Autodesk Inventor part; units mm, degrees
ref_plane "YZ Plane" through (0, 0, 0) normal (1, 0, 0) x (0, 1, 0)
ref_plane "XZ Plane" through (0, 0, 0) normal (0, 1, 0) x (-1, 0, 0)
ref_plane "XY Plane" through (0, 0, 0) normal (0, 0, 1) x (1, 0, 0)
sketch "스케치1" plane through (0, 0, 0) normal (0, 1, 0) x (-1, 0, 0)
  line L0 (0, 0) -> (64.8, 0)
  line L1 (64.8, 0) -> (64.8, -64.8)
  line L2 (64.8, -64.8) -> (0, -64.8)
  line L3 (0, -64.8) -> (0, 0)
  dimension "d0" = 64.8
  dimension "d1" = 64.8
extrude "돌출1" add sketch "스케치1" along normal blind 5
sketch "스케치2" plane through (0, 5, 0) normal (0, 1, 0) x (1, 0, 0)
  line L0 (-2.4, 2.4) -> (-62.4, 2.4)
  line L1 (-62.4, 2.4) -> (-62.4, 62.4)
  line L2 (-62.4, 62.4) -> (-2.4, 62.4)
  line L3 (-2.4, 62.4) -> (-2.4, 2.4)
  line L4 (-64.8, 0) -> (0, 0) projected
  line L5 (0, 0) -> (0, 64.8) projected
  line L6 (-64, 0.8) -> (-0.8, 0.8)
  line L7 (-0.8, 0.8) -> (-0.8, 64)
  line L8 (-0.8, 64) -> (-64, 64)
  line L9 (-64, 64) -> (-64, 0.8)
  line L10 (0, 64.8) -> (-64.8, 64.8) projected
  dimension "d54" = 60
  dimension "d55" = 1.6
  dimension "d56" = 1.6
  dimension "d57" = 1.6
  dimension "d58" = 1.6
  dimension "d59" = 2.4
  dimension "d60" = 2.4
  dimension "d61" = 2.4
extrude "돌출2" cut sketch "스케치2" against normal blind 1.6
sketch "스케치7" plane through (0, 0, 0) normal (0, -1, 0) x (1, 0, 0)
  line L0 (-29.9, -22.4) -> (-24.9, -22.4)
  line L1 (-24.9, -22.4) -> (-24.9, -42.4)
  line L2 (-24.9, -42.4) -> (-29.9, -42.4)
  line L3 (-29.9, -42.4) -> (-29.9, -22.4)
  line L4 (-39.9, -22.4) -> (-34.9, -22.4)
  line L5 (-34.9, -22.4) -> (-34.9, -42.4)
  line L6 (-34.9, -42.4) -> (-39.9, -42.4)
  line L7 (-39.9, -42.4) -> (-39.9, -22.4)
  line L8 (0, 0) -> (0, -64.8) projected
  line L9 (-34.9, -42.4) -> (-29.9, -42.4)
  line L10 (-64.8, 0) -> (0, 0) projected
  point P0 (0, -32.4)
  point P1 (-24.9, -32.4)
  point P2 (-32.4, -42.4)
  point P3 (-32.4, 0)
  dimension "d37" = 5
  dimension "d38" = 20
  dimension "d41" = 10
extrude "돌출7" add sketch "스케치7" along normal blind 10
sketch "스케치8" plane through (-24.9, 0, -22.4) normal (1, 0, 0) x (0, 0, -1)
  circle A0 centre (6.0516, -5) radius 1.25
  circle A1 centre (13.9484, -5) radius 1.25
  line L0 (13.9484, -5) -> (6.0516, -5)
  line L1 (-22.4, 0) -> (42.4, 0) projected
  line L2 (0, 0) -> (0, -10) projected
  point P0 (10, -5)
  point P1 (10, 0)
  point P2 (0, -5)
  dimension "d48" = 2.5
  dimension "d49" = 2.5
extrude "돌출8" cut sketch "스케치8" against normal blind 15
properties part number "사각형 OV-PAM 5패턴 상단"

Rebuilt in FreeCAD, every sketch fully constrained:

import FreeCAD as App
import Part
import Sketcher

V = App.Vector
Q = App.Units.Quantity

doc = App.newDocument("Part")
params = doc.addObject("Spreadsheet::Sheet", "Params")
for row, (alias, value) in enumerate([
    ("sketch1_width", "64.8 mm"),
    ("pad1_length", "5 mm"),
    ("sketch2_width", "60 mm"),
    ("pocket1_length", "1.6 mm"),
    ("sketch3_width", "5 mm"),
    ("sketch3_height", "20 mm"),
    ("pad2_length", "10 mm"),
    ("sketch4_diameter", "2.5 mm"),
    ("pocket2_length", "15 mm"),
], start=1):
    params.set(f"A{row}", alias)
    params.set(f"B{row}", "=" + value)
    params.setAlias(f"B{row}", alias)

body = doc.addObject("PartDesign::Body", "Body")

# Sketch on XZ plane
sketch1 = body.newObject("Sketcher::SketchObject", "Sketch")
sketch1.AttachmentSupport = (doc.getObject("XZ_Plane"), [""])
sketch1.MapMode = "FlatFace"
sketch1.addGeometry(Part.LineSegment(V(-65, 0, 0), V(0, 0, 0)), False)
sketch1.addGeometry(Part.LineSegment(V(0, 0, 0), V(0, -65, 0)), False)
sketch1.addGeometry(Part.LineSegment(V(0, -65, 0), V(-65, -65, 0)), False)
sketch1.addGeometry(Part.LineSegment(V(-65, -65, 0), V(-65, 0, 0)), False)
sketch1.addConstraint(Sketcher.Constraint("Coincident", 0, 2, 1, 1))
sketch1.addConstraint(Sketcher.Constraint("Coincident", 1, 2, 2, 1))
sketch1.addConstraint(Sketcher.Constraint("Coincident", 2, 2, 3, 1))
sketch1.addConstraint(Sketcher.Constraint("Coincident", 3, 2, 0, 1))
sketch1.addConstraint(Sketcher.Constraint("Horizontal", 0))
sketch1.addConstraint(Sketcher.Constraint("Vertical", 1))
sketch1.addConstraint(Sketcher.Constraint("Horizontal", 2))
sketch1.addConstraint(Sketcher.Constraint("Vertical", 3))
sketch1.addConstraint(Sketcher.Constraint("Coincident", 0, 2, -1, 1))
sketch1.addConstraint(Sketcher.Constraint("Equal", 2, 1))
sketch1.addConstraint(Sketcher.Constraint("DistanceX", 0, 1, 0, 2, Q("64.8 mm")))
sketch1.setExpression("Constraints[10]", "Params.sketch1_width")
pad1 = body.newObject("PartDesign::Pad", "Pad")
pad1.Profile = sketch1
pad1.setExpression("Length", "Params.pad1_length")
pad1.Reversed = True

# Sketch on XZ plane
sketch2 = body.newObject("Sketcher::SketchObject", "Sketch001")
sketch2.AttachmentSupport = (doc.getObject("XZ_Plane"), [""])
sketch2.MapMode = "FlatFace"
sketch2.AttachmentOffset = App.Placement(V(0, 0, -5), App.Rotation())
sketch2.addGeometry(Part.LineSegment(V(-64, -64, 0), V(-64, -1, 0)), False)
sketch2.addGeometry(Part.LineSegment(V(-64, -1, 0), V(-1, -1, 0)), False)
sketch2.addGeometry(Part.LineSegment(V(-1, -1, 0), V(-1, -64, 0)), False)
sketch2.addGeometry(Part.LineSegment(V(-1, -64, 0), V(-64, -64, 0)), False)
sketch2.addGeometry(Part.LineSegment(V(-2, -62, 0), V(-2, -2, 0)), False)
sketch2.addGeometry(Part.LineSegment(V(-2, -2, 0), V(-62, -2, 0)), False)
sketch2.addGeometry(Part.LineSegment(V(-62, -2, 0), V(-62, -62, 0)), False)
sketch2.addGeometry(Part.LineSegment(V(-62, -62, 0), V(-2, -62, 0)), False)
sketch2.addConstraint(Sketcher.Constraint("Coincident", 0, 2, 1, 1))
sketch2.addConstraint(Sketcher.Constraint("Coincident", 1, 2, 2, 1))
sketch2.addConstraint(Sketcher.Constraint("Coincident", 2, 2, 3, 1))
sketch2.addConstraint(Sketcher.Constraint("Coincident", 3, 2, 0, 1))
sketch2.addConstraint(Sketcher.Constraint("Coincident", 4, 2, 5, 1))
sketch2.addConstraint(Sketcher.Constraint("Coincident", 5, 2, 6, 1))
sketch2.addConstraint(Sketcher.Constraint("Coincident", 6, 2, 7, 1))
sketch2.addConstraint(Sketcher.Constraint("Coincident", 7, 2, 4, 1))
sketch2.addConstraint(Sketcher.Constraint("Vertical", 0))
sketch2.addConstraint(Sketcher.Constraint("Horizontal", 1))
sketch2.addConstraint(Sketcher.Constraint("Vertical", 2))
sketch2.addConstraint(Sketcher.Constraint("Horizontal", 3))
sketch2.addConstraint(Sketcher.Constraint("Vertical", 4))
sketch2.addConstraint(Sketcher.Constraint("Horizontal", 5))
sketch2.addConstraint(Sketcher.Constraint("Vertical", 6))
sketch2.addConstraint(Sketcher.Constraint("Horizontal", 7))
sketch2.addConstraint(Sketcher.Constraint("Equal", 3, 0))
sketch2.addConstraint(Sketcher.Constraint("Equal", 7, 4))
sketch2.addConstraint(Sketcher.Constraint("DistanceX", 5, 2, 5, 1, Q("60 mm")))
sketch2.addConstraint(Sketcher.Constraint("DistanceX", 4, 2, -1, 1, Q("2.4 mm")))
sketch2.addConstraint(Sketcher.Constraint("DistanceY", 4, 2, -1, 1, Q("2.4 mm")))
sketch2.addConstraint(Sketcher.Constraint("DistanceX", 4, 2, 1, 2, Q("1.6 mm")))
sketch2.addConstraint(Sketcher.Constraint("DistanceY", 4, 2, 1, 2, Q("1.6 mm")))
sketch2.addConstraint(Sketcher.Constraint("DistanceX", 0, 2, 5, 2, Q("1.6 mm")))
sketch2.setExpression("Constraints[18]", "Params.sketch2_width")
pocket1 = body.newObject("PartDesign::Pocket", "Pocket")
pocket1.Profile = sketch2
pocket1.setExpression("Length", "Params.pocket1_length")
pocket1.Reversed = True

# Sketch on XZ plane
sketch3 = body.newObject("Sketcher::SketchObject", "Sketch002")
sketch3.AttachmentSupport = (doc.getObject("XZ_Plane"), [""])
sketch3.MapMode = "FlatFace"
sketch3.addGeometry(Part.LineSegment(V(-40, -42, 0), V(-35, -42, 0)), False)
sketch3.addGeometry(Part.LineSegment(V(-35, -42, 0), V(-35, -22, 0)), False)
sketch3.addGeometry(Part.LineSegment(V(-35, -22, 0), V(-40, -22, 0)), False)
sketch3.addGeometry(Part.LineSegment(V(-40, -22, 0), V(-40, -42, 0)), False)
sketch3.addGeometry(Part.LineSegment(V(-25, -22, 0), V(-30, -22, 0)), False)
sketch3.addGeometry(Part.LineSegment(V(-30, -22, 0), V(-30, -42, 0)), False)
sketch3.addGeometry(Part.LineSegment(V(-30, -42, 0), V(-25, -42, 0)), False)
sketch3.addGeometry(Part.LineSegment(V(-25, -42, 0), V(-25, -22, 0)), False)
sketch3.addConstraint(Sketcher.Constraint("Coincident", 0, 2, 1, 1))
sketch3.addConstraint(Sketcher.Constraint("Coincident", 1, 2, 2, 1))
sketch3.addConstraint(Sketcher.Constraint("Coincident", 2, 2, 3, 1))
sketch3.addConstraint(Sketcher.Constraint("Coincident", 3, 2, 0, 1))
sketch3.addConstraint(Sketcher.Constraint("Coincident", 4, 2, 5, 1))
sketch3.addConstraint(Sketcher.Constraint("Coincident", 5, 2, 6, 1))
sketch3.addConstraint(Sketcher.Constraint("Coincident", 6, 2, 7, 1))
sketch3.addConstraint(Sketcher.Constraint("Coincident", 7, 2, 4, 1))
sketch3.addConstraint(Sketcher.Constraint("Horizontal", 0))
sketch3.addConstraint(Sketcher.Constraint("Vertical", 1))
sketch3.addConstraint(Sketcher.Constraint("Horizontal", 2))
sketch3.addConstraint(Sketcher.Constraint("Vertical", 3))
sketch3.addConstraint(Sketcher.Constraint("Horizontal", 4))
sketch3.addConstraint(Sketcher.Constraint("Vertical", 5))
sketch3.addConstraint(Sketcher.Constraint("Horizontal", 6))
sketch3.addConstraint(Sketcher.Constraint("Vertical", 7))
sketch3.addConstraint(Sketcher.Constraint("Horizontal", 2, 2, 4, 2))
sketch3.addConstraint(Sketcher.Constraint("Horizontal", 3, 2, 5, 2))
sketch3.addConstraint(Sketcher.Constraint("Equal", 2, 4))
sketch3.addConstraint(Sketcher.Constraint("DistanceX", 0, 1, 0, 2, Q("5 mm")))
sketch3.addConstraint(Sketcher.Constraint("DistanceY", 1, 1, 1, 2, Q("20 mm")))
sketch3.addConstraint(Sketcher.Constraint("DistanceX", 1, 2, 4, 2, Q("5 mm")))
sketch3.addConstraint(Sketcher.Constraint("DistanceX", 0, 2, -1, 1, Q("34.9 mm")))
sketch3.addConstraint(Sketcher.Constraint("DistanceY", 0, 2, -1, 1, Q("42.4 mm")))
sketch3.setExpression("Constraints[19]", "Params.sketch3_width")
sketch3.setExpression("Constraints[20]", "Params.sketch3_height")
pad2 = body.newObject("PartDesign::Pad", "Pad001")
pad2.Profile = sketch3
pad2.setExpression("Length", "Params.pad2_length")

# Sketch on YZ plane
sketch4 = body.newObject("Sketcher::SketchObject", "Sketch003")
sketch4.AttachmentSupport = (doc.getObject("YZ_Plane"), [""])
sketch4.MapMode = "FlatFace"
sketch4.AttachmentOffset = App.Placement(V(0, 0, -24.9), App.Rotation())
sketch4.addGeometry(Part.Circle(V(-5, -28.5, 0), V(0, 0, 1), 1.2), False)
sketch4.addGeometry(Part.Circle(V(-5, -36.3, 0), V(0, 0, 1), 1.2), False)
sketch4.addConstraint(Sketcher.Constraint("Equal", 0, 1))
sketch4.addConstraint(Sketcher.Constraint("Vertical", 0, 3, 1, 3))
sketch4.addConstraint(Sketcher.Constraint("Diameter", 0, Q("2.5 mm")))
sketch4.addConstraint(Sketcher.Constraint("DistanceX", 0, 3, -1, 1, Q("5 mm")))
sketch4.addConstraint(Sketcher.Constraint("DistanceY", 0, 3, -1, 1, Q("28.4516 mm")))
sketch4.addConstraint(Sketcher.Constraint("DistanceY", 1, 3, -1, 1, Q("36.3484 mm")))
sketch4.setExpression("Constraints[2]", "Params.sketch4_diameter")
pocket2 = body.newObject("PartDesign::Pocket", "Pocket001")
pocket2.Profile = sketch4
pocket2.setExpression("Length", "Params.pocket2_length")

doc.recompute()
